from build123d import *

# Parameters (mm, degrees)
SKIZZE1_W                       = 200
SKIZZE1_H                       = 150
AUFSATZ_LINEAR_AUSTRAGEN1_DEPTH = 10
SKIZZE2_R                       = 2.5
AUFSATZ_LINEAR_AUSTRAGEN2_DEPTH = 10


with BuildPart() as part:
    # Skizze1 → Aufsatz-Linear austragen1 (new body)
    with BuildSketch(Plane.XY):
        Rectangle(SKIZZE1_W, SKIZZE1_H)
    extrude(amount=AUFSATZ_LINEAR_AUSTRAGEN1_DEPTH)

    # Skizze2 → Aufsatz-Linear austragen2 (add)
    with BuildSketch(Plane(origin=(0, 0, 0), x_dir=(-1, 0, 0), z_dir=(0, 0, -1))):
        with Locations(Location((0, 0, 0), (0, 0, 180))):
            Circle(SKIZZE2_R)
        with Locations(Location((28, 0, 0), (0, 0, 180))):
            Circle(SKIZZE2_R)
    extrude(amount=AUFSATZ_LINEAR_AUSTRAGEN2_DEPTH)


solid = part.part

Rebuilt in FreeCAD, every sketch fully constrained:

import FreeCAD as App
import Part
import Sketcher
from FreeCAD import Vector
Q = App.Units.Quantity

doc = App.newDocument("Part")
body = doc.addObject("PartDesign::Body", "Body")

# Sketch on XY plane
sketch1 = body.newObject("Sketcher::SketchObject", "Sketch")
sketch1.AttachmentSupport = (doc.getObject("XY_Plane"), [""])
sketch1.MapMode = "FlatFace"
sketch1.addGeometry(Part.LineSegment(Vector(-100, 75, 0), Vector(-100, -75, 0)), False)
sketch1.addGeometry(Part.LineSegment(Vector(-100, -75, 0), Vector(100, -75, 0)), False)
sketch1.addGeometry(Part.LineSegment(Vector(100, -75, 0), Vector(100, 75, 0)), False)
sketch1.addGeometry(Part.LineSegment(Vector(100, 75, 0), Vector(-100, 75, 0)), False)
sketch1.addConstraint(Sketcher.Constraint("Coincident", 0, 2, 1, 1))
sketch1.addConstraint(Sketcher.Constraint("Coincident", 1, 2, 2, 1))
sketch1.addConstraint(Sketcher.Constraint("Coincident", 2, 2, 3, 1))
sketch1.addConstraint(Sketcher.Constraint("Coincident", 3, 2, 0, 1))
sketch1.addConstraint(Sketcher.Constraint("Vertical", 0))
sketch1.addConstraint(Sketcher.Constraint("Horizontal", 1))
sketch1.addConstraint(Sketcher.Constraint("Vertical", 2))
sketch1.addConstraint(Sketcher.Constraint("Horizontal", 3))
sketch1.addConstraint(Sketcher.Constraint("Symmetric", 0, 2, 2, 2, -1, 1))
sketch1.addConstraint(Sketcher.Constraint("DistanceX", 1, 1, 1, 2, Q("200 mm")))
sketch1.addConstraint(Sketcher.Constraint("DistanceY", 0, 2, 0, 1, Q("150 mm")))
pad1 = body.newObject("PartDesign::Pad", "Pad")
pad1.Profile = sketch1
pad1.Length = 10

# Sketch on XY plane
sketch2 = body.newObject("Sketcher::SketchObject", "Sketch001")
sketch2.AttachmentSupport = (doc.getObject("XY_Plane"), [""])
sketch2.MapMode = "FlatFace"
sketch2.addGeometry(Part.Circle(Vector(0, 0, 0), Vector(0, 0, 1), 2.5), False)
sketch2.addGeometry(Part.Circle(Vector(-28, 0, 0), Vector(0, 0, 1), 2.5), False)
sketch2.addConstraint(Sketcher.Constraint("Coincident", 0, 3, -1, 1))
sketch2.addConstraint(Sketcher.Constraint("Equal", 0, 1))
sketch2.addConstraint(Sketcher.Constraint("PointOnObject", 1, 3, -1))
sketch2.addConstraint(Sketcher.Constraint("Diameter", 0, Q("5 mm")))
sketch2.addConstraint(Sketcher.Constraint("DistanceX", 1, 3, -1, 1, Q("28 mm")))
pad2 = body.newObject("PartDesign::Pad", "Pad001")
pad2.Profile = sketch2
pad2.Length = 10
pad2.Reversed = True

doc.recompute()
